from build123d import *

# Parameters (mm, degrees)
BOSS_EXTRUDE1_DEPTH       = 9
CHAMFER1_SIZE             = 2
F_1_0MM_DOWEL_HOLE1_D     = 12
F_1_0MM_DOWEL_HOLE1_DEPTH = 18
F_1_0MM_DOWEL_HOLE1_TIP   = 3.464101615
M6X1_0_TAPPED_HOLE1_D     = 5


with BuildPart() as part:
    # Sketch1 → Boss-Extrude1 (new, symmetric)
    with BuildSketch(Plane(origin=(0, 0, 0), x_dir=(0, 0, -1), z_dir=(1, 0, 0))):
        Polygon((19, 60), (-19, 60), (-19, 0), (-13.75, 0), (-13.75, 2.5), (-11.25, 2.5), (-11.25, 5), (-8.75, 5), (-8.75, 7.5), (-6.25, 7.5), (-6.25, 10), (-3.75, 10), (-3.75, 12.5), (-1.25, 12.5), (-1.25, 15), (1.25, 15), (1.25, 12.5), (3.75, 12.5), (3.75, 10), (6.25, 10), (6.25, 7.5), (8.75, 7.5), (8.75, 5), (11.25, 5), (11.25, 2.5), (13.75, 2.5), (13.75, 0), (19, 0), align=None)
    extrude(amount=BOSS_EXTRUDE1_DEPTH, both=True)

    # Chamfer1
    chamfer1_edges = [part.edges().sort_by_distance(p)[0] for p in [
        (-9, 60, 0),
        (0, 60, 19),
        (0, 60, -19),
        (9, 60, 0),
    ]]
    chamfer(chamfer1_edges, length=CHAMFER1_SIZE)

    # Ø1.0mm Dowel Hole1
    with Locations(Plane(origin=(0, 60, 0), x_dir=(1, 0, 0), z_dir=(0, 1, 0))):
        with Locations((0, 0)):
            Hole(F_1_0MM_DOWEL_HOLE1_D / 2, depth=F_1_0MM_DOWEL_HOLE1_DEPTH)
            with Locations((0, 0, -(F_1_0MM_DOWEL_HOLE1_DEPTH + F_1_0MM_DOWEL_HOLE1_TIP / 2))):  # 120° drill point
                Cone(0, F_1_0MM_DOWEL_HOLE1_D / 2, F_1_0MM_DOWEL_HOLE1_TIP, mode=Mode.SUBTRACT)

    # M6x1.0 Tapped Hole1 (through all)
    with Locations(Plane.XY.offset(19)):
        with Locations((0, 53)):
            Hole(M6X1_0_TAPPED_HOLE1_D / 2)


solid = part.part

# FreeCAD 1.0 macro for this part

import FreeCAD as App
import Part
import Sketcher

V = App.Vector
Q = App.Units.Quantity


def edges_at(feature, points):
    """Names of the edges that pass closest to the given points."""
    edges = feature.Shape.Edges
    near = lambda p: min(range(len(edges)), key=lambda i: edges[i].distToShape(Part.Vertex(*p))[0])
    return sorted({f"Edge{near(p) + 1}" for p in points})


def add_polygon(sketch, points):
    """Adds a closed chain of lines whose ends are joined by coincident constraints."""
    first, n = sketch.GeometryCount, len(points)
    for a, b in zip(points, points[1:] + points[:1]):
        sketch.addGeometry(Part.LineSegment(App.Vector(*a, 0), App.Vector(*b, 0)), False)
    for i in range(n):
        sketch.addConstraint(Sketcher.Constraint("Coincident", first + i, 2, first + (i + 1) % n, 1))

doc = App.newDocument("Part")
body = doc.addObject("PartDesign::Body", "Body")

# Sketch on YZ plane
sketch1 = body.newObject("Sketcher::SketchObject", "Sketch")
sketch1.AttachmentSupport = (doc.getObject("YZ_Plane"), [""])
sketch1.MapMode = "FlatFace"
add_polygon(sketch1, [(60, -19), (60, 19), (0, 19), (0, 13.75), (2.5, 13.75), (2.5, 11.25), (5, 11.25), (5, 8.75), (7.5, 8.75), (7.5, 6.25), (10, 6.25), (10, 3.75), (12.5, 3.75), (12.5, 1.25), (15, 1.25), (15, -1.25), (12.5, -1.25), (12.5, -3.75), (10, -3.75), (10, -6.25), (7.5, -6.25), (7.5, -8.75), (5, -8.75), (5, -11.25), (2.5, -11.25), (2.5, -13.75), (0, -13.75), (0, -19)])  # lines 0-27
sketch1.addConstraint([
    Sketcher.Constraint("Vertical", 0),
    Sketcher.Constraint("Horizontal", 1),
    Sketcher.Constraint("Vertical", 2),
    Sketcher.Constraint("Horizontal", 3),
    Sketcher.Constraint("Vertical", 4),
    Sketcher.Constraint("Horizontal", 5),
    Sketcher.Constraint("Vertical", 6),
    Sketcher.Constraint("Horizontal", 7),
    Sketcher.Constraint("Vertical", 8),
    Sketcher.Constraint("Horizontal", 9),
    Sketcher.Constraint("Vertical", 10),
    Sketcher.Constraint("Horizontal", 11),
    Sketcher.Constraint("Vertical", 12),
    Sketcher.Constraint("Horizontal", 13),
    Sketcher.Constraint("Vertical", 14),
    Sketcher.Constraint("Horizontal", 15),
    Sketcher.Constraint("Vertical", 16),
    Sketcher.Constraint("Horizontal", 17),
    Sketcher.Constraint("Vertical", 18),
    Sketcher.Constraint("Horizontal", 19),
    Sketcher.Constraint("Vertical", 20),
    Sketcher.Constraint("Horizontal", 21),
    Sketcher.Constraint("Vertical", 22),
    Sketcher.Constraint("Horizontal", 23),
    Sketcher.Constraint("Vertical", 24),
    Sketcher.Constraint("Horizontal", 25),
    Sketcher.Constraint("Vertical", 26),
    Sketcher.Constraint("Horizontal", 27),
    Sketcher.Constraint("Symmetric", 2, 2, 25, 2, -1, 1),
    Sketcher.Constraint("Symmetric", 12, 2, 15, 2, -1),
    Sketcher.Constraint("Symmetric", 10, 2, 17, 2, -1),
    Sketcher.Constraint("Symmetric", 8, 2, 19, 2, -1),
    Sketcher.Constraint("Symmetric", 6, 2, 21, 2, -1),
    Sketcher.Constraint("Symmetric", 4, 2, 23, 2, -1),
    Sketcher.Constraint("Symmetric", 1, 2, 26, 2, -1),
    Sketcher.Constraint("Equal", 3, 5),
    Sketcher.Constraint("Equal", 5, 7),
    Sketcher.Constraint("Equal", 7, 9),
    Sketcher.Constraint("Equal", 9, 11),
    Sketcher.Constraint("Equal", 11, 13),
    Sketcher.Constraint("Equal", 25, 4),
    Sketcher.Constraint("Equal", 4, 6),
    Sketcher.Constraint("Equal", 6, 8),
    Sketcher.Constraint("Equal", 8, 10),
    Sketcher.Constraint("Equal", 10, 12),
    Sketcher.Constraint("Equal", 12, 14),
    Sketcher.Constraint("DistanceX", 1, 2, 1, 1, Q("60 mm")),
    Sketcher.Constraint("DistanceY", 0, 1, 0, 2, Q("38 mm")),
    Sketcher.Constraint("DistanceX", 3, 1, 3, 2, Q("2.5 mm")),
])
pad1 = body.newObject("PartDesign::Pad", "Pad")
pad1.Profile = sketch1
pad1.Length = 18
pad1.Midplane = True
doc.recompute()

chamfer = body.newObject("PartDesign::Chamfer", "Chamfer")
chamfer.Base = (pad1, edges_at(pad1, [
    (-9, 60, 0),
    (0, 60, 19),
    (0, 60, -19),
    (9, 60, 0),
]))
chamfer.Size = 2

# Sketch on XZ plane
sketch2 = body.newObject("Sketcher::SketchObject", "Sketch001")
sketch2.AttachmentSupport = (doc.getObject("XZ_Plane"), [""])
sketch2.MapMode = "FlatFace"
sketch2.AttachmentOffset = App.Placement(V(0, 0, -60), App.Rotation())
sketch2.addGeometry(Part.Circle(V(0, 0, 0), V(0, 0, 1), 6), False)
sketch2.addConstraint([
    Sketcher.Constraint("Coincident", 0, 3, -1, 1),
    Sketcher.Constraint("Diameter", 0, Q("12 mm")),
])
doc.recompute()
hole = body.newObject("PartDesign::Hole", "Hole")
hole.Profile = sketch2
hole.ThreadType = "None"
hole.Diameter = 12
hole.DepthType = "Dimension"
hole.Depth = 18
hole.DrillPoint = "Angled"
hole.DrillPointAngle = 120
hole.Reversed = True

# Sketch on XY plane
sketch3 = body.newObject("Sketcher::SketchObject", "Sketch002")
sketch3.AttachmentSupport = (doc.getObject("XY_Plane"), [""])
sketch3.MapMode = "FlatFace"
sketch3.AttachmentOffset = App.Placement(V(0, 0, 19), App.Rotation())
sketch3.addGeometry(Part.Circle(V(0, 53, 0), V(0, 0, 1), 2.5), False)
sketch3.addConstraint([
    Sketcher.Constraint("PointOnObject", 0, 3, -2),
    Sketcher.Constraint("Diameter", 0, Q("5 mm")),
    Sketcher.Constraint("DistanceY", -1, 1, 0, 3, Q("53 mm")),
])
doc.recompute()
hole2 = body.newObject("PartDesign::Hole", "Hole001")
hole2.Profile = sketch3
hole2.ThreadType = "None"
hole2.Diameter = 5
hole2.DepthType = "ThroughAll"

doc.recompute()
